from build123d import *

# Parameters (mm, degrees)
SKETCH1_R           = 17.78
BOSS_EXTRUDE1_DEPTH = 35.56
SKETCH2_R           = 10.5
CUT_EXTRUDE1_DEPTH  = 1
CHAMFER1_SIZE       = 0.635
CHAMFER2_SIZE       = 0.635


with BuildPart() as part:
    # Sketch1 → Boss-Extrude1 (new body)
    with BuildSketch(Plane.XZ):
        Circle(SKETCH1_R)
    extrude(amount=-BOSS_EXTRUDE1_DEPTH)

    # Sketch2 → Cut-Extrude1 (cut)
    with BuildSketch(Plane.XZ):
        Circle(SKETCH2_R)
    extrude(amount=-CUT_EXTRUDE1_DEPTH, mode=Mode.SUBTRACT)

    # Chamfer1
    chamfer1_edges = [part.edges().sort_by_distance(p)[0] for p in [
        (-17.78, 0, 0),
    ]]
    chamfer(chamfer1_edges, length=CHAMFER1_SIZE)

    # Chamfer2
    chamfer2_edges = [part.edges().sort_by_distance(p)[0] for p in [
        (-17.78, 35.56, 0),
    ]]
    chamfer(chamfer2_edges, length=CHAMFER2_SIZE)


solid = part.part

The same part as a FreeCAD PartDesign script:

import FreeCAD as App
import Part
import Sketcher
from FreeCAD import Vector


def edges_at(feature, points):
    """Names of the edges that pass closest to the given points."""
    edges = feature.Shape.Edges
    near = lambda p: min(range(len(edges)), key=lambda i: edges[i].distToShape(Part.Vertex(*p))[0])
    return sorted({f"Edge{near(p) + 1}" for p in points})

doc = App.newDocument("Part")
body = doc.addObject("PartDesign::Body", "Body")

# Sketch on XZ plane
sketch1 = body.newObject("Sketcher::SketchObject", "Sketch")
sketch1.AttachmentSupport = (doc.getObject("XZ_Plane"), [""])
sketch1.MapMode = "FlatFace"
sketch1.addGeometry(Part.Circle(Vector(0, 0, 0), Vector(0, 0, 1), 18), False)
sketch1.addConstraint(Sketcher.Constraint("Coincident", 0, 3, -1, 1))
sketch1.addConstraint(Sketcher.Constraint("Diameter", 0, 35.56))
pad1 = body.newObject("PartDesign::Pad", "Pad")
pad1.Profile = sketch1
pad1.Length = 35.56
pad1.Reversed = True

# Sketch on XZ plane
sketch2 = body.newObject("Sketcher::SketchObject", "Sketch001")
sketch2.AttachmentSupport = (doc.getObject("XZ_Plane"), [""])
sketch2.MapMode = "FlatFace"
sketch2.addGeometry(Part.Circle(Vector(0, 0, 0), Vector(0, 0, 1), 10), False)
sketch2.addConstraint(Sketcher.Constraint("Coincident", 0, 3, -1, 1))
sketch2.addConstraint(Sketcher.Constraint("Diameter", 0, 21.0))
pocket1 = body.newObject("PartDesign::Pocket", "Pocket")
pocket1.Profile = sketch2
pocket1.Length = 1
doc.recompute()

chamfer = body.newObject("PartDesign::Chamfer", "Chamfer")
chamfer.Base = (pocket1, edges_at(pocket1, [(-17.78, 0, 0)]))
chamfer.Size = 0.635
doc.recompute()

chamfer2 = body.newObject("PartDesign::Chamfer", "Chamfer001")
chamfer2.Base = (chamfer, edges_at(chamfer, [(-17.78, 35.56, 0)]))
chamfer2.Size = 0.635

doc.recompute()
